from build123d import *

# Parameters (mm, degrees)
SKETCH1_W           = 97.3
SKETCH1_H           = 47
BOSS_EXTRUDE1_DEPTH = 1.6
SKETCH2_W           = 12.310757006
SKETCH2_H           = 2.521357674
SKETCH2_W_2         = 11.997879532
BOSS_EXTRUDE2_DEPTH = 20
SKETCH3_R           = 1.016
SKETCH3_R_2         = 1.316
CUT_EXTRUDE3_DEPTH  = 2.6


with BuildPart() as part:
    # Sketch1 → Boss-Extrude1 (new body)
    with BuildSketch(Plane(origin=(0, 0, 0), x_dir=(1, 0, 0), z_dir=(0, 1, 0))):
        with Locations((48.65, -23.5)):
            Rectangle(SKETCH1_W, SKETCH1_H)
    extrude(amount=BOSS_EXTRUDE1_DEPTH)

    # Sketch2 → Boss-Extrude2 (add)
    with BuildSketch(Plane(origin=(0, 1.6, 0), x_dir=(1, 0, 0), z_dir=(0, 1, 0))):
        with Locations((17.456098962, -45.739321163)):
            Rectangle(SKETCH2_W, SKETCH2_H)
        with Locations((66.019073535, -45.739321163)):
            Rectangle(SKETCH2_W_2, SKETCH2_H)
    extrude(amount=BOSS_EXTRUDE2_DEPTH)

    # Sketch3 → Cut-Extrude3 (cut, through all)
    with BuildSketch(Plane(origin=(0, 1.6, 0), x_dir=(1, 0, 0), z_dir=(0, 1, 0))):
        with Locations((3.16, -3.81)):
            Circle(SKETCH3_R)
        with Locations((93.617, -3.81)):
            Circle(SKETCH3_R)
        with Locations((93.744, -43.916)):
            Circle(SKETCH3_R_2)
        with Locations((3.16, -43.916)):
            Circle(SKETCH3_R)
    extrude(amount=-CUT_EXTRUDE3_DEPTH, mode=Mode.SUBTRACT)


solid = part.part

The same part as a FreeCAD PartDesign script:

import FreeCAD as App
import Part
import Sketcher
Q = App.Units.Quantity


def add_polygon(sketch, points):
    """Adds a closed chain of lines whose ends are joined by coincident constraints."""
    first, n = sketch.GeometryCount, len(points)
    for a, b in zip(points, points[1:] + points[:1]):
        sketch.addGeometry(Part.LineSegment(App.Vector(*a, 0), App.Vector(*b, 0)), False)
    for i in range(n):
        sketch.addConstraint(Sketcher.Constraint("Coincident", first + i, 2, first + (i + 1) % n, 1))

doc = App.newDocument("Part")
body = doc.addObject("PartDesign::Body", "Body")

sketch1 = body.newObject("Sketcher::SketchObject", "Sketch")
sketch1.AttachmentSupport = (doc.getObject("XZ_Plane"), [""])
sketch1.MapMode = "FlatFace"
add_polygon(sketch1, [(0, 0), (0, 47), (97.3, 47), (97.3, 0)])
sketch1.addConstraint([
    Sketcher.Constraint("Vertical", 0),
    Sketcher.Constraint("Horizontal", 1),
    Sketcher.Constraint("Vertical", 2),
    Sketcher.Constraint("Horizontal", 3),
    Sketcher.Constraint("Coincident", 3, 2, -1, 1),
    Sketcher.Constraint("DistanceY", 0, 1, 0, 2, Q("47 mm")),
    Sketcher.Constraint("DistanceX", 1, 1, 1, 2, Q("97.3 mm")),
])
pad1 = body.newObject("PartDesign::Pad", "Pad")
pad1.Profile = sketch1
pad1.Length = 1.6
pad1.Reversed = True

sketch2 = body.newObject("Sketcher::SketchObject", "Sketch001")
sketch2.AttachmentSupport = (doc.getObject("XZ_Plane"), [""])
sketch2.MapMode = "FlatFace"
sketch2.AttachmentOffset = App.Placement(App.Vector(0, 0, -1.6), App.Rotation())
add_polygon(sketch2, [(11.30072, 44.478642), (11.30072, 47), (23.611477, 47), (23.611477, 44.478642)])
add_polygon(sketch2, [(60.020134, 44.478642), (60.020134, 47), (72.018013, 47), (72.018013, 44.478642)])
sketch2.addConstraint([
    Sketcher.Constraint("Vertical", 0),
    Sketcher.Constraint("Horizontal", 1),
    Sketcher.Constraint("Vertical", 2),
    Sketcher.Constraint("Horizontal", 3),
    Sketcher.Constraint("Vertical", 4),
    Sketcher.Constraint("Horizontal", 5),
    Sketcher.Constraint("Vertical", 6),
    Sketcher.Constraint("Horizontal", 7),
    Sketcher.Constraint("Horizontal", 1, 2, 4, 2),
    Sketcher.Constraint("Horizontal", 3, 2, 6, 2),
    Sketcher.Constraint("DistanceY", -1, 1, 0, 2, Q("47 mm")),
    Sketcher.Constraint("DistanceX", 5, 1, 5, 2, Q("11.99788 mm")),
    Sketcher.Constraint("DistanceX", 1, 1, 1, 2, Q("12.310757 mm")),
    Sketcher.Constraint("DistanceY", 0, 1, 0, 2, Q("2.521358 mm")),
    Sketcher.Constraint("DistanceX", -1, 1, 0, 2, Q("11.30072 mm")),
    Sketcher.Constraint("DistanceX", -1, 1, 4, 2, Q("60.020134 mm")),
])
pad2 = body.newObject("PartDesign::Pad", "Pad001")
pad2.Profile = sketch2
pad2.Length = 20
pad2.Reversed = True

sketch3 = body.newObject("Sketcher::SketchObject", "Sketch002")
sketch3.AttachmentSupport = (doc.getObject("XZ_Plane"), [""])
sketch3.MapMode = "FlatFace"
sketch3.AttachmentOffset = App.Placement(App.Vector(0, 0, -1.6), App.Rotation())
sketch3.addGeometry([
    Part.Circle(App.Vector(3.16, 3.81, 0), App.Vector(0, 0, 1), 1.016),
    Part.Circle(App.Vector(93.617, 3.81, 0), App.Vector(0, 0, 1), 1.016),
    Part.Circle(App.Vector(93.744, 43.916, 0), App.Vector(0, 0, 1), 1.316),
    Part.Circle(App.Vector(3.16, 43.916, 0), App.Vector(0, 0, 1), 1.016),
], False)
sketch3.addConstraint([
    Sketcher.Constraint("Equal", 0, 1),
    Sketcher.Constraint("Equal", 1, 3),
    Sketcher.Constraint("Horizontal", 0, 3, 1, 3),
    Sketcher.Constraint("Horizontal", 2, 3, 3, 3),
    Sketcher.Constraint("Vertical", 0, 3, 3, 3),
    Sketcher.Constraint("Diameter", 0, Q("2.032 mm")),
    Sketcher.Constraint("Diameter", 2, Q("2.632 mm")),
    Sketcher.Constraint("DistanceX", -1, 1, 0, 3, Q("3.16 mm")),
    Sketcher.Constraint("DistanceY", -1, 1, 0, 3, Q("3.81 mm")),
    Sketcher.Constraint("DistanceX", -1, 1, 1, 3, Q("93.617 mm")),
    Sketcher.Constraint("DistanceX", -1, 1, 2, 3, Q("93.744 mm")),
    Sketcher.Constraint("DistanceY", -1, 1, 2, 3, Q("43.916 mm")),
])
pocket1 = body.newObject("PartDesign::Pocket", "Pocket")
pocket1.Profile = sketch3
pocket1.Type = "ThroughAll"
pocket1.Reversed = True

doc.recompute()
